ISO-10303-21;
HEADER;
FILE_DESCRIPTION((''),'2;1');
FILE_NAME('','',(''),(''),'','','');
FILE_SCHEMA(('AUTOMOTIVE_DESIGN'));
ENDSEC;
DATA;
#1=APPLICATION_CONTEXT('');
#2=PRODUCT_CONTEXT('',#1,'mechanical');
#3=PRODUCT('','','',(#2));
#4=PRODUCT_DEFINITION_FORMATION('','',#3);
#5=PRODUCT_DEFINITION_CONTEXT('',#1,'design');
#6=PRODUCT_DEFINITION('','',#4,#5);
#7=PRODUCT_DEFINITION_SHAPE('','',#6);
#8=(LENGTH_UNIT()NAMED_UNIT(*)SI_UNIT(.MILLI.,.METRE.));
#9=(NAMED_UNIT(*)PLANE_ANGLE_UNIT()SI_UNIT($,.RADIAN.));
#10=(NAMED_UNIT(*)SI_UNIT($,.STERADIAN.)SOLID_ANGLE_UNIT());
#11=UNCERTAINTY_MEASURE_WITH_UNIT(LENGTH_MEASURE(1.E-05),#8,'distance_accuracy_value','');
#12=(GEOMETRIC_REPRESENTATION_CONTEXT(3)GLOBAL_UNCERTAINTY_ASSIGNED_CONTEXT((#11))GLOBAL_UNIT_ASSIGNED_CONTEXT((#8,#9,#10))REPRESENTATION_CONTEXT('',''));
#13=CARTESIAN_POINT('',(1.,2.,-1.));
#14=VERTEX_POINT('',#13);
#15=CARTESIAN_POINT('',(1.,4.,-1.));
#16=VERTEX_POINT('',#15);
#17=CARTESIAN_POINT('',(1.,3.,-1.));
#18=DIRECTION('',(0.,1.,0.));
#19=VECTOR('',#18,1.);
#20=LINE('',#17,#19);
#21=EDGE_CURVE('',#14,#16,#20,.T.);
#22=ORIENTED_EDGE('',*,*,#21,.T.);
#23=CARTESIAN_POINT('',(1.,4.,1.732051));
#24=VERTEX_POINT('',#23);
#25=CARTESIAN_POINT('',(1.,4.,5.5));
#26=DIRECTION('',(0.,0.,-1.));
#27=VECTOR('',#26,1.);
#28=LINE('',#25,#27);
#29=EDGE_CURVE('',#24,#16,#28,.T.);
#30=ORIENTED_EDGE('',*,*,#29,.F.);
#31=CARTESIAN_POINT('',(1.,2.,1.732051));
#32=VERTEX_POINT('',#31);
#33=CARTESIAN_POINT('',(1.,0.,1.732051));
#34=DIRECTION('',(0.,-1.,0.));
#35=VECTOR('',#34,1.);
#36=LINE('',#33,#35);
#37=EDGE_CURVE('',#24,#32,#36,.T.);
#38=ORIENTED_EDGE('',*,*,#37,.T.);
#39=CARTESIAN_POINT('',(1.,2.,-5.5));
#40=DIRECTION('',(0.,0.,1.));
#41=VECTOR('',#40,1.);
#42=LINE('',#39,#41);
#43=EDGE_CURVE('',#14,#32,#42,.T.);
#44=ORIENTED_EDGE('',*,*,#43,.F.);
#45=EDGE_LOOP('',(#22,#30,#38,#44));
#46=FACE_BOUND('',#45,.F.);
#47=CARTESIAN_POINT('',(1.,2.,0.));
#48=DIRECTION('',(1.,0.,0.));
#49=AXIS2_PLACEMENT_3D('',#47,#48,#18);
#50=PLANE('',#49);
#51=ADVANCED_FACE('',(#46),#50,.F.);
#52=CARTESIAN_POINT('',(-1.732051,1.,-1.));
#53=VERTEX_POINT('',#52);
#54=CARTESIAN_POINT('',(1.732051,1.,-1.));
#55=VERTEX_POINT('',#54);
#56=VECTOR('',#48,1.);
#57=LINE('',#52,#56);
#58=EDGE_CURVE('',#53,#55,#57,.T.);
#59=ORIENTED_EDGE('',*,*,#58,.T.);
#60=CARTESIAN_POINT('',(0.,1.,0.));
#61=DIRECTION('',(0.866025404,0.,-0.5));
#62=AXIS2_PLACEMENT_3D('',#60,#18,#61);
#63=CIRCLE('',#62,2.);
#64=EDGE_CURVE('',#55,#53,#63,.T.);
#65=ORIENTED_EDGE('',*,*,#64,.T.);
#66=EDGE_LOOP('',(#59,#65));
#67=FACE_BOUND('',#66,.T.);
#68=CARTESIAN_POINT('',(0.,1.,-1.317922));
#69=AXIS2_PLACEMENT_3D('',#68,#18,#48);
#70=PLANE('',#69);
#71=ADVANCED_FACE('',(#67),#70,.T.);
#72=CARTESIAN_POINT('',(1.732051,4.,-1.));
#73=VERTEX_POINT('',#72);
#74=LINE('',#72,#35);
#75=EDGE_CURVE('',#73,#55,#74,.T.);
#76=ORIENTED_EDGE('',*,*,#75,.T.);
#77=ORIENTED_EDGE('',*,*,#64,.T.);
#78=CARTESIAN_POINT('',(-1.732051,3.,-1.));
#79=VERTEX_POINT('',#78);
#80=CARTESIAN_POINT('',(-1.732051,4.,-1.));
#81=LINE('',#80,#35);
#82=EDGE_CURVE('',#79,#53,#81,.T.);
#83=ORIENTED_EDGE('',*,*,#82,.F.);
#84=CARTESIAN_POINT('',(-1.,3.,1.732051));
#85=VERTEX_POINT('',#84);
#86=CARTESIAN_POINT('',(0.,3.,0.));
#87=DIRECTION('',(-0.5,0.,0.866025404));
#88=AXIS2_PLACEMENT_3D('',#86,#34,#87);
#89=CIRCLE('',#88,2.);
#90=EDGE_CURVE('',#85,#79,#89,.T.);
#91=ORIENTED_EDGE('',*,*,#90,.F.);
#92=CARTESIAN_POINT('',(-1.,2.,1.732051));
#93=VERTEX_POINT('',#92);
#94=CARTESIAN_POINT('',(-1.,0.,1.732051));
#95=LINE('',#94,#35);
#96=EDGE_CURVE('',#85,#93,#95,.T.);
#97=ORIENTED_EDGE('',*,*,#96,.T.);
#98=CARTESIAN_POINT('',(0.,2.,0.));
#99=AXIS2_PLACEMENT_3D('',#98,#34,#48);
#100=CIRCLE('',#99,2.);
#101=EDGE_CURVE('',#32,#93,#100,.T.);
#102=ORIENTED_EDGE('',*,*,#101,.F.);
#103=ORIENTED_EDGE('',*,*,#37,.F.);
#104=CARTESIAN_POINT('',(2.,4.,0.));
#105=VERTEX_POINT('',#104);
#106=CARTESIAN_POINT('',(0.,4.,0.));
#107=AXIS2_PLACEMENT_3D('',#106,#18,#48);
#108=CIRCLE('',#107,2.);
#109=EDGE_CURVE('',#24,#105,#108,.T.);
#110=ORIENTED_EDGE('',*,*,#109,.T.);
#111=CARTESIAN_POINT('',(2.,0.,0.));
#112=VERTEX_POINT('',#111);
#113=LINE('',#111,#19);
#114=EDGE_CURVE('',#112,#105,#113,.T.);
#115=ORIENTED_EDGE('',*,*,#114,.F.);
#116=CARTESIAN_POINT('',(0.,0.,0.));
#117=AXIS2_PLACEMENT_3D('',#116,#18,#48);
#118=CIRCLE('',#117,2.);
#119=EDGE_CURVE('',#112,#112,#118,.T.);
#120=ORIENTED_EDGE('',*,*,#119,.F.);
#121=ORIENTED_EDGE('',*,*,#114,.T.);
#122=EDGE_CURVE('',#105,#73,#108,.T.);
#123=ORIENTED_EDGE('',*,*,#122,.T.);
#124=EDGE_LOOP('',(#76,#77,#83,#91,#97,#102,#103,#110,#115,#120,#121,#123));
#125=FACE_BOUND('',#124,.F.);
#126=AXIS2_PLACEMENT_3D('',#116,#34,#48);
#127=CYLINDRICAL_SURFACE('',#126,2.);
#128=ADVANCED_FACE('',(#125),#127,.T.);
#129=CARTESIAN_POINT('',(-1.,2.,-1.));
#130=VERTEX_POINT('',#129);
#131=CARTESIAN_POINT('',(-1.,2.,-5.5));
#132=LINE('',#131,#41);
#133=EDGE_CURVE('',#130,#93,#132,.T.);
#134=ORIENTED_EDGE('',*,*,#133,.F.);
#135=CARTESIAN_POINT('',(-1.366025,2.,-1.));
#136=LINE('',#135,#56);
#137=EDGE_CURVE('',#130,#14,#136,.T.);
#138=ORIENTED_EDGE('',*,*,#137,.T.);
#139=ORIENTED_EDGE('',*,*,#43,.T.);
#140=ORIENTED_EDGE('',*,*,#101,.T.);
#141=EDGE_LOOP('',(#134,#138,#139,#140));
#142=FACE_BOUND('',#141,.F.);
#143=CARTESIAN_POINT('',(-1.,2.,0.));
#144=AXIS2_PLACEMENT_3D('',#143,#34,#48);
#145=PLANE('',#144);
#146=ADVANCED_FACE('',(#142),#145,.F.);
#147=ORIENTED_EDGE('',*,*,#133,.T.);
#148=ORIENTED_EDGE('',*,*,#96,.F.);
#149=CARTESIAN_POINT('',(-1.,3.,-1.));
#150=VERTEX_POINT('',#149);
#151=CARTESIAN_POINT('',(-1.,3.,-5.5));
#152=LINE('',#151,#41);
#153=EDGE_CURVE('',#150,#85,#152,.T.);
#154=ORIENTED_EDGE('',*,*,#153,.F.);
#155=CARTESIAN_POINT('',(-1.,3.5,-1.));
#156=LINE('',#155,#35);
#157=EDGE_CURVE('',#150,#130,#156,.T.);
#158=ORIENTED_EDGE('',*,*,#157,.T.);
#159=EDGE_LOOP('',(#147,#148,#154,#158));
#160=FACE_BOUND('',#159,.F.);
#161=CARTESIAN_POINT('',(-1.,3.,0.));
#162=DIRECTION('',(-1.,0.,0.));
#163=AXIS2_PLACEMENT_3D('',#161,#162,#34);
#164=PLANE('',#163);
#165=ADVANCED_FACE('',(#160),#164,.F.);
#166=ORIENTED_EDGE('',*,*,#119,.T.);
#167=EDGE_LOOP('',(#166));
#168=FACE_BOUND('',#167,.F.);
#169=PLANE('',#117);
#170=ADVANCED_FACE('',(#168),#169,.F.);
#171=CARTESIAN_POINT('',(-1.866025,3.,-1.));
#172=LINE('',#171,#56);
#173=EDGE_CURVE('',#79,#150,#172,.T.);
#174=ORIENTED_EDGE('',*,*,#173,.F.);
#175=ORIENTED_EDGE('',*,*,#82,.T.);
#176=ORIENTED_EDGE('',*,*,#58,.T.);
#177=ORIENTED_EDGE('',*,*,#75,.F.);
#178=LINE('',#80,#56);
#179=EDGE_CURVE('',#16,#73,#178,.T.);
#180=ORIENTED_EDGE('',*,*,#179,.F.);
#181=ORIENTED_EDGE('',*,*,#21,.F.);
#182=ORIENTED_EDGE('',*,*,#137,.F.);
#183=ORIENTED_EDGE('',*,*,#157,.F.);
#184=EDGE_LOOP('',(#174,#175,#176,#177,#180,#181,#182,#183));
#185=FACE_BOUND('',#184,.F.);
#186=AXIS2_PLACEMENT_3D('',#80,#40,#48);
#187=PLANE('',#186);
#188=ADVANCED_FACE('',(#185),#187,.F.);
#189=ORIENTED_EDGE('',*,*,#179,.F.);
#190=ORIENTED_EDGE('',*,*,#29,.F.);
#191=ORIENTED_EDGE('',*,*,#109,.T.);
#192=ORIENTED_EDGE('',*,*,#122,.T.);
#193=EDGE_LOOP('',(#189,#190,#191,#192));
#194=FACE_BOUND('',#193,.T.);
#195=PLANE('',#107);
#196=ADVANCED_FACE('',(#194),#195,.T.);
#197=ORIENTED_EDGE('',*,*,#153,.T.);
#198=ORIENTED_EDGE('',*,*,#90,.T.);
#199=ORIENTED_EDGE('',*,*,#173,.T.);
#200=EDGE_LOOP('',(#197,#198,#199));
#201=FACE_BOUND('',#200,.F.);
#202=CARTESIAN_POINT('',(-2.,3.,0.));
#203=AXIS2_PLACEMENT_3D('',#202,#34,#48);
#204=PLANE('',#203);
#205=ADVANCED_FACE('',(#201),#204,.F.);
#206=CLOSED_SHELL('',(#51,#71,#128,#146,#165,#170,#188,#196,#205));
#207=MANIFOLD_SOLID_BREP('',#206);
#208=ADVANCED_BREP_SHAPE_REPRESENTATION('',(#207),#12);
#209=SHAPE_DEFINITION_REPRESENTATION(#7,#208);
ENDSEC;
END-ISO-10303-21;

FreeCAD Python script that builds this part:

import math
import FreeCAD as App
import Part
import Sketcher
from FreeCAD import Vector
Q = App.Units.Quantity


def add_polygon(sketch, points):
    """Adds a closed chain of lines whose ends are joined by coincident constraints."""
    first, n = sketch.GeometryCount, len(points)
    for a, b in zip(points, points[1:] + points[:1]):
        sketch.addGeometry(Part.LineSegment(App.Vector(*a, 0), App.Vector(*b, 0)), False)
    for i in range(n):
        sketch.addConstraint(Sketcher.Constraint("Coincident", first + i, 2, first + (i + 1) % n, 1))

doc = App.newDocument("Part")
body = doc.addObject("PartDesign::Body", "Body")

# Sketch on XZ plane
sketch1 = body.newObject("Sketcher::SketchObject", "Sketch")
sketch1.AttachmentSupport = (doc.getObject("XZ_Plane"), [""])
sketch1.MapMode = "FlatFace"
sketch1.addGeometry(Part.Circle(Vector(0, 0, 0), Vector(0, 0, 1), 2), False)
sketch1.addConstraint(Sketcher.Constraint("Coincident", 0, 3, -1, 1))
sketch1.addConstraint(Sketcher.Constraint("Diameter", 0, Q("4 mm")))
pad1 = body.newObject("PartDesign::Pad", "Pad")
pad1.Profile = sketch1
pad1.Length = 4
pad1.Reversed = True

# Sketch on XZ plane
sketch2 = body.newObject("Sketcher::SketchObject", "Sketch001")
sketch2.AttachmentSupport = (doc.getObject("XZ_Plane"), [""])
sketch2.MapMode = "FlatFace"
sketch2.AttachmentOffset = App.Placement(Vector(0, 0, -4), App.Rotation())
sketch2.addGeometry(Part.LineSegment(Vector(-1.7, -1, 0), Vector(1.7, -1, 0)), False)
sketch2.addGeometry(Part.ArcOfCircle(Part.Circle(Vector(0, 0, 0), Vector(0, 0, 1), 2), math.radians(-150), math.radians(-30)), False)
sketch2.addConstraint(Sketcher.Constraint("Coincident", 0, 1, 1, 1))
sketch2.addConstraint(Sketcher.Constraint("Coincident", 1, 2, 0, 2))
sketch2.addConstraint(Sketcher.Constraint("Horizontal", 0))
sketch2.addConstraint(Sketcher.Constraint("Coincident", 1, 3, -1, 1))
sketch2.addConstraint(Sketcher.Constraint("Radius", 1, Q("2 mm")))
sketch2.addConstraint(Sketcher.Constraint("DistanceY", 0, 1, -1, 1, Q("1 mm")))
pocket1 = body.newObject("PartDesign::Pocket", "Pocket")
pocket1.Profile = sketch2
pocket1.Length = 3
pocket1.Reversed = True

# Sketch on XY plane
sketch3 = body.newObject("Sketcher::SketchObject", "Sketch002")
sketch3.AttachmentSupport = (doc.getObject("XY_Plane"), [""])
sketch3.MapMode = "FlatFace"
add_polygon(sketch3, [(-2, 3), (-1, 3), (-1, 2), (1, 2), (1, 4), (-2, 4)])  # lines 0-5
sketch3.addConstraint(Sketcher.Constraint("Horizontal", 0))
sketch3.addConstraint(Sketcher.Constraint("Vertical", 1))
sketch3.addConstraint(Sketcher.Constraint("Horizontal", 2))
sketch3.addConstraint(Sketcher.Constraint("Vertical", 3))
sketch3.addConstraint(Sketcher.Constraint("Horizontal", 4))
sketch3.addConstraint(Sketcher.Constraint("Vertical", 5))
sketch3.addConstraint(Sketcher.Constraint("Equal", 0, 1))
sketch3.addConstraint(Sketcher.Constraint("Equal", 2, 3))
sketch3.addConstraint(Sketcher.Constraint("Equal", 1, 5))
sketch3.addConstraint(Sketcher.Constraint("DistanceX", 0, 1, 0, 2, Q("1 mm")))
sketch3.addConstraint(Sketcher.Constraint("DistanceX", 0, 2, -1, 1, Q("1 mm")))
sketch3.addConstraint(Sketcher.Constraint("DistanceY", -1, 1, 0, 2, Q("3 mm")))
pocket2 = body.newObject("PartDesign::Pocket", "Pocket001")
pocket2.Profile = sketch3
pocket2.Length = 11
pocket2.Midplane = True

doc.recompute()
